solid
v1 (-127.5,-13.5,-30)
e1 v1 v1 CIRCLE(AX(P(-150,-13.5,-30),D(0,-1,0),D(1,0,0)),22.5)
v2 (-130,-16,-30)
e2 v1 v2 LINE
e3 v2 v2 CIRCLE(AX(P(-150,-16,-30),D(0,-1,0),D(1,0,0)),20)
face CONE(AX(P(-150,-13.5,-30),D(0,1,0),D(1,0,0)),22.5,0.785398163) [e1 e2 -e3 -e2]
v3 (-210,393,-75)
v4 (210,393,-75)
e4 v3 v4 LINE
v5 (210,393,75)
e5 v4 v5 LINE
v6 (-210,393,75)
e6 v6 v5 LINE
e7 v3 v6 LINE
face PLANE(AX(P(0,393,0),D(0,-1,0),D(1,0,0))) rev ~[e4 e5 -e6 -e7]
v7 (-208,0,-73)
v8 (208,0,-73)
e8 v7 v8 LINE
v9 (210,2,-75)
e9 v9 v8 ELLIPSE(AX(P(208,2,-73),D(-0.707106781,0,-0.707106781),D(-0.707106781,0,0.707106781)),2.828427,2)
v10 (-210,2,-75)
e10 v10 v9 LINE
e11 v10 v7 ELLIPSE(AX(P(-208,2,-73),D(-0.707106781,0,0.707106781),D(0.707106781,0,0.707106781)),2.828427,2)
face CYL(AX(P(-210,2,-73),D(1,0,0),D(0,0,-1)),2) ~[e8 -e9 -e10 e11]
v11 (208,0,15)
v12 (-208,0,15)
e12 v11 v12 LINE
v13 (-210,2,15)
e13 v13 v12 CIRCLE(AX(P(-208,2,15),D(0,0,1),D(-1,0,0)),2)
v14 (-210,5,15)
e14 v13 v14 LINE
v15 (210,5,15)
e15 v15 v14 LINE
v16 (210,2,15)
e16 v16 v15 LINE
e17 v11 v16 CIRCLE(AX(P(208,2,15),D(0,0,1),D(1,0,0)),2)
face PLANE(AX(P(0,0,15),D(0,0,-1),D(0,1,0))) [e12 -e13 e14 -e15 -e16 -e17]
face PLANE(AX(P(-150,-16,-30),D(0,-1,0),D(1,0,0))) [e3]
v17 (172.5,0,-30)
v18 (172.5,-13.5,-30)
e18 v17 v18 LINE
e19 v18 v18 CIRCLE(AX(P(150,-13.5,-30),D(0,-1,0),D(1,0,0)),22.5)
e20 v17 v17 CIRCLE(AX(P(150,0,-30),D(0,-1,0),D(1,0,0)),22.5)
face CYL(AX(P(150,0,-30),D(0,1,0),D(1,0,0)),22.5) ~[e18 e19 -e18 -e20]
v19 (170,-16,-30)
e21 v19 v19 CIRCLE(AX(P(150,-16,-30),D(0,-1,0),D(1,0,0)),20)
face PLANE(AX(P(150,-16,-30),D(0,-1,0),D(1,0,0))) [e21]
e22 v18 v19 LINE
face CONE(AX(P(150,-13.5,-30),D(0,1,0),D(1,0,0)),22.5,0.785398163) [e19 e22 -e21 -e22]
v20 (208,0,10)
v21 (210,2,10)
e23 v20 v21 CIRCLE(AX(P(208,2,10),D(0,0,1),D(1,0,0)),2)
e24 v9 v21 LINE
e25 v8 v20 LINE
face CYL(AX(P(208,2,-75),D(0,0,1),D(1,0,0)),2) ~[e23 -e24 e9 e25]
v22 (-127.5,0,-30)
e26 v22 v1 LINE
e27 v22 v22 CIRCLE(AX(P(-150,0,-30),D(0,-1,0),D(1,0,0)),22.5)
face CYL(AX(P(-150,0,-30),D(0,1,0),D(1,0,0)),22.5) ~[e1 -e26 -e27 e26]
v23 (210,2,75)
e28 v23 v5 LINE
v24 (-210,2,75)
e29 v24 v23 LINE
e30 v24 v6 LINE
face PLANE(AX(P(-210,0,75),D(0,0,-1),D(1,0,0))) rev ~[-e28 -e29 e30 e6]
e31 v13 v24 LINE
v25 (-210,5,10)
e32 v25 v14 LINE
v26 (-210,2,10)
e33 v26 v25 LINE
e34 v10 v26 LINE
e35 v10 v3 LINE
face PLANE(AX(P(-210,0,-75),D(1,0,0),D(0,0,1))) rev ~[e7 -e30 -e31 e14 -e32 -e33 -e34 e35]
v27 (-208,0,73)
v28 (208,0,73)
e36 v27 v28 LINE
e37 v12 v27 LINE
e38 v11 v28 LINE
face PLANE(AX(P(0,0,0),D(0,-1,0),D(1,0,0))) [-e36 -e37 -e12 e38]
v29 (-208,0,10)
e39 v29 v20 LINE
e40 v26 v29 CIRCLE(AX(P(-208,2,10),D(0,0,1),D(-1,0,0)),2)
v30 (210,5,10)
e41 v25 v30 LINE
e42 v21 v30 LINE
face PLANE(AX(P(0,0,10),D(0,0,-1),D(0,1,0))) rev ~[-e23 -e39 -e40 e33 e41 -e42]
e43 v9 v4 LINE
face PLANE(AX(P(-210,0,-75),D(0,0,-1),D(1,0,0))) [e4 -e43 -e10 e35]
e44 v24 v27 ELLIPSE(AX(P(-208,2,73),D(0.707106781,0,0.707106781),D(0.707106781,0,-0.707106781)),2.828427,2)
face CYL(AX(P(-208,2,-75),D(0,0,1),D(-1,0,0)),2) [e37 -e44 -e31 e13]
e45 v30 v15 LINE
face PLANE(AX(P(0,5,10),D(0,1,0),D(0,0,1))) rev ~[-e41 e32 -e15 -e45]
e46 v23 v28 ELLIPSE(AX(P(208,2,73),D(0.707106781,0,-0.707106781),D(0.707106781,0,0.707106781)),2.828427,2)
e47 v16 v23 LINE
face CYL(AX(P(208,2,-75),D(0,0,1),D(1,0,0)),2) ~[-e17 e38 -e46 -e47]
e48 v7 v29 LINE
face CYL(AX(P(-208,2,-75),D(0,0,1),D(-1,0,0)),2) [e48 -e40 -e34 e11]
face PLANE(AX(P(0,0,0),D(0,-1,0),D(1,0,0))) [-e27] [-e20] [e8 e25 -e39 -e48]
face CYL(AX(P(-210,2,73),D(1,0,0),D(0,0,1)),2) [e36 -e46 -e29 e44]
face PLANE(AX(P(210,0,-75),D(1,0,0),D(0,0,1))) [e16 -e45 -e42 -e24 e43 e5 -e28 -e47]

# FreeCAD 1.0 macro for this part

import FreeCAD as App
import Part
import Sketcher
Q = App.Units.Quantity


def edges_at(feature, points):
    """Names of the edges that pass closest to the given points."""
    edges = feature.Shape.Edges
    near = lambda p: min(range(len(edges)), key=lambda i: edges[i].distToShape(Part.Vertex(*p))[0])
    return sorted({f"Edge{near(p) + 1}" for p in points})


def add_polygon(sketch, points):
    """Adds a closed chain of lines whose ends are joined by coincident constraints."""
    first, n = sketch.GeometryCount, len(points)
    for a, b in zip(points, points[1:] + points[:1]):
        sketch.addGeometry(Part.LineSegment(App.Vector(*a, 0), App.Vector(*b, 0)), False)
    for i in range(n):
        sketch.addConstraint(Sketcher.Constraint("Coincident", first + i, 2, first + (i + 1) % n, 1))

doc = App.newDocument("Part")
body = doc.addObject("PartDesign::Body", "Body")

sketch1 = body.newObject("Sketcher::SketchObject", "Sketch")
sketch1.AttachmentSupport = (doc.getObject("XZ_Plane"), [""])
sketch1.MapMode = "FlatFace"
add_polygon(sketch1, [(-210, 75), (-210, -75), (210, -75), (210, 75)])
sketch1.addConstraint([
    Sketcher.Constraint("Vertical", 0),
    Sketcher.Constraint("Horizontal", 1),
    Sketcher.Constraint("Vertical", 2),
    Sketcher.Constraint("Horizontal", 3),
    Sketcher.Constraint("Symmetric", 0, 2, 2, 2, -1, 1),
    Sketcher.Constraint("DistanceX", 1, 1, 1, 2, Q("420 mm")),
    Sketcher.Constraint("DistanceY", 0, 2, 0, 1, Q("150 mm")),
])
pad1 = body.newObject("PartDesign::Pad", "Pad")
pad1.Profile = sketch1
pad1.Length = 393
pad1.Reversed = True
doc.recompute()

fillet = body.newObject("PartDesign::Fillet", "Fillet")
fillet.Base = (pad1, edges_at(pad1, [
    (210, 0, 0),
    (0, 0, 75),
    (-210, 0, 0),
    (0, 0, -75),
]))
fillet.Radius = 2

sketch2 = body.newObject("Sketcher::SketchObject", "Sketch001")
sketch2.AttachmentSupport = (doc.getObject("XZ_Plane"), [""])
sketch2.MapMode = "FlatFace"
sketch2.addGeometry([
    Part.Circle(App.Vector(-150, -30, 0), App.Vector(0, 0, 1), 22),
    Part.Circle(App.Vector(150, -30, 0), App.Vector(0, 0, 1), 22),
], False)
sketch2.addConstraint([
    Sketcher.Constraint("Equal", 0, 1),
    Sketcher.Constraint("Symmetric", 0, 3, 1, 3, -2),
    Sketcher.Constraint("Diameter", 0, Q("45 mm")),
    Sketcher.Constraint("DistanceX", 0, 3, -1, 1, Q("150 mm")),
    Sketcher.Constraint("DistanceY", 0, 3, -1, 1, Q("30 mm")),
])
pad2 = body.newObject("PartDesign::Pad", "Pad001")
pad2.Profile = sketch2
pad2.Length = 16
doc.recompute()

chamfer = body.newObject("PartDesign::Chamfer", "Chamfer")
chamfer.Base = (pad2, edges_at(pad2, [(-172.5, -16, -30), (127.5, -16, -30)]))
chamfer.Size = 2.5

sketch3 = body.newObject("Sketcher::SketchObject", "Sketch002")
sketch3.AttachmentSupport = (doc.getObject("YZ_Plane"), [""])
sketch3.MapMode = "FlatFace"
add_polygon(sketch3, [(0, 15), (0, 10), (5, 10), (5, 15)])
sketch3.addConstraint([
    Sketcher.Constraint("Vertical", 0),
    Sketcher.Constraint("Horizontal", 1),
    Sketcher.Constraint("Vertical", 2),
    Sketcher.Constraint("Horizontal", 3),
    Sketcher.Constraint("PointOnObject", 0, 2, -2),
    Sketcher.Constraint("Equal", 3, 0),
    Sketcher.Constraint("DistanceX", 1, 1, 1, 2, Q("5 mm")),
    Sketcher.Constraint("DistanceY", -1, 1, 0, 2, Q("10 mm")),
])
pocket1 = body.newObject("PartDesign::Pocket", "Pocket")
pocket1.Profile = sketch3
pocket1.Length = 500
pocket1.Midplane = True

doc.recompute()
